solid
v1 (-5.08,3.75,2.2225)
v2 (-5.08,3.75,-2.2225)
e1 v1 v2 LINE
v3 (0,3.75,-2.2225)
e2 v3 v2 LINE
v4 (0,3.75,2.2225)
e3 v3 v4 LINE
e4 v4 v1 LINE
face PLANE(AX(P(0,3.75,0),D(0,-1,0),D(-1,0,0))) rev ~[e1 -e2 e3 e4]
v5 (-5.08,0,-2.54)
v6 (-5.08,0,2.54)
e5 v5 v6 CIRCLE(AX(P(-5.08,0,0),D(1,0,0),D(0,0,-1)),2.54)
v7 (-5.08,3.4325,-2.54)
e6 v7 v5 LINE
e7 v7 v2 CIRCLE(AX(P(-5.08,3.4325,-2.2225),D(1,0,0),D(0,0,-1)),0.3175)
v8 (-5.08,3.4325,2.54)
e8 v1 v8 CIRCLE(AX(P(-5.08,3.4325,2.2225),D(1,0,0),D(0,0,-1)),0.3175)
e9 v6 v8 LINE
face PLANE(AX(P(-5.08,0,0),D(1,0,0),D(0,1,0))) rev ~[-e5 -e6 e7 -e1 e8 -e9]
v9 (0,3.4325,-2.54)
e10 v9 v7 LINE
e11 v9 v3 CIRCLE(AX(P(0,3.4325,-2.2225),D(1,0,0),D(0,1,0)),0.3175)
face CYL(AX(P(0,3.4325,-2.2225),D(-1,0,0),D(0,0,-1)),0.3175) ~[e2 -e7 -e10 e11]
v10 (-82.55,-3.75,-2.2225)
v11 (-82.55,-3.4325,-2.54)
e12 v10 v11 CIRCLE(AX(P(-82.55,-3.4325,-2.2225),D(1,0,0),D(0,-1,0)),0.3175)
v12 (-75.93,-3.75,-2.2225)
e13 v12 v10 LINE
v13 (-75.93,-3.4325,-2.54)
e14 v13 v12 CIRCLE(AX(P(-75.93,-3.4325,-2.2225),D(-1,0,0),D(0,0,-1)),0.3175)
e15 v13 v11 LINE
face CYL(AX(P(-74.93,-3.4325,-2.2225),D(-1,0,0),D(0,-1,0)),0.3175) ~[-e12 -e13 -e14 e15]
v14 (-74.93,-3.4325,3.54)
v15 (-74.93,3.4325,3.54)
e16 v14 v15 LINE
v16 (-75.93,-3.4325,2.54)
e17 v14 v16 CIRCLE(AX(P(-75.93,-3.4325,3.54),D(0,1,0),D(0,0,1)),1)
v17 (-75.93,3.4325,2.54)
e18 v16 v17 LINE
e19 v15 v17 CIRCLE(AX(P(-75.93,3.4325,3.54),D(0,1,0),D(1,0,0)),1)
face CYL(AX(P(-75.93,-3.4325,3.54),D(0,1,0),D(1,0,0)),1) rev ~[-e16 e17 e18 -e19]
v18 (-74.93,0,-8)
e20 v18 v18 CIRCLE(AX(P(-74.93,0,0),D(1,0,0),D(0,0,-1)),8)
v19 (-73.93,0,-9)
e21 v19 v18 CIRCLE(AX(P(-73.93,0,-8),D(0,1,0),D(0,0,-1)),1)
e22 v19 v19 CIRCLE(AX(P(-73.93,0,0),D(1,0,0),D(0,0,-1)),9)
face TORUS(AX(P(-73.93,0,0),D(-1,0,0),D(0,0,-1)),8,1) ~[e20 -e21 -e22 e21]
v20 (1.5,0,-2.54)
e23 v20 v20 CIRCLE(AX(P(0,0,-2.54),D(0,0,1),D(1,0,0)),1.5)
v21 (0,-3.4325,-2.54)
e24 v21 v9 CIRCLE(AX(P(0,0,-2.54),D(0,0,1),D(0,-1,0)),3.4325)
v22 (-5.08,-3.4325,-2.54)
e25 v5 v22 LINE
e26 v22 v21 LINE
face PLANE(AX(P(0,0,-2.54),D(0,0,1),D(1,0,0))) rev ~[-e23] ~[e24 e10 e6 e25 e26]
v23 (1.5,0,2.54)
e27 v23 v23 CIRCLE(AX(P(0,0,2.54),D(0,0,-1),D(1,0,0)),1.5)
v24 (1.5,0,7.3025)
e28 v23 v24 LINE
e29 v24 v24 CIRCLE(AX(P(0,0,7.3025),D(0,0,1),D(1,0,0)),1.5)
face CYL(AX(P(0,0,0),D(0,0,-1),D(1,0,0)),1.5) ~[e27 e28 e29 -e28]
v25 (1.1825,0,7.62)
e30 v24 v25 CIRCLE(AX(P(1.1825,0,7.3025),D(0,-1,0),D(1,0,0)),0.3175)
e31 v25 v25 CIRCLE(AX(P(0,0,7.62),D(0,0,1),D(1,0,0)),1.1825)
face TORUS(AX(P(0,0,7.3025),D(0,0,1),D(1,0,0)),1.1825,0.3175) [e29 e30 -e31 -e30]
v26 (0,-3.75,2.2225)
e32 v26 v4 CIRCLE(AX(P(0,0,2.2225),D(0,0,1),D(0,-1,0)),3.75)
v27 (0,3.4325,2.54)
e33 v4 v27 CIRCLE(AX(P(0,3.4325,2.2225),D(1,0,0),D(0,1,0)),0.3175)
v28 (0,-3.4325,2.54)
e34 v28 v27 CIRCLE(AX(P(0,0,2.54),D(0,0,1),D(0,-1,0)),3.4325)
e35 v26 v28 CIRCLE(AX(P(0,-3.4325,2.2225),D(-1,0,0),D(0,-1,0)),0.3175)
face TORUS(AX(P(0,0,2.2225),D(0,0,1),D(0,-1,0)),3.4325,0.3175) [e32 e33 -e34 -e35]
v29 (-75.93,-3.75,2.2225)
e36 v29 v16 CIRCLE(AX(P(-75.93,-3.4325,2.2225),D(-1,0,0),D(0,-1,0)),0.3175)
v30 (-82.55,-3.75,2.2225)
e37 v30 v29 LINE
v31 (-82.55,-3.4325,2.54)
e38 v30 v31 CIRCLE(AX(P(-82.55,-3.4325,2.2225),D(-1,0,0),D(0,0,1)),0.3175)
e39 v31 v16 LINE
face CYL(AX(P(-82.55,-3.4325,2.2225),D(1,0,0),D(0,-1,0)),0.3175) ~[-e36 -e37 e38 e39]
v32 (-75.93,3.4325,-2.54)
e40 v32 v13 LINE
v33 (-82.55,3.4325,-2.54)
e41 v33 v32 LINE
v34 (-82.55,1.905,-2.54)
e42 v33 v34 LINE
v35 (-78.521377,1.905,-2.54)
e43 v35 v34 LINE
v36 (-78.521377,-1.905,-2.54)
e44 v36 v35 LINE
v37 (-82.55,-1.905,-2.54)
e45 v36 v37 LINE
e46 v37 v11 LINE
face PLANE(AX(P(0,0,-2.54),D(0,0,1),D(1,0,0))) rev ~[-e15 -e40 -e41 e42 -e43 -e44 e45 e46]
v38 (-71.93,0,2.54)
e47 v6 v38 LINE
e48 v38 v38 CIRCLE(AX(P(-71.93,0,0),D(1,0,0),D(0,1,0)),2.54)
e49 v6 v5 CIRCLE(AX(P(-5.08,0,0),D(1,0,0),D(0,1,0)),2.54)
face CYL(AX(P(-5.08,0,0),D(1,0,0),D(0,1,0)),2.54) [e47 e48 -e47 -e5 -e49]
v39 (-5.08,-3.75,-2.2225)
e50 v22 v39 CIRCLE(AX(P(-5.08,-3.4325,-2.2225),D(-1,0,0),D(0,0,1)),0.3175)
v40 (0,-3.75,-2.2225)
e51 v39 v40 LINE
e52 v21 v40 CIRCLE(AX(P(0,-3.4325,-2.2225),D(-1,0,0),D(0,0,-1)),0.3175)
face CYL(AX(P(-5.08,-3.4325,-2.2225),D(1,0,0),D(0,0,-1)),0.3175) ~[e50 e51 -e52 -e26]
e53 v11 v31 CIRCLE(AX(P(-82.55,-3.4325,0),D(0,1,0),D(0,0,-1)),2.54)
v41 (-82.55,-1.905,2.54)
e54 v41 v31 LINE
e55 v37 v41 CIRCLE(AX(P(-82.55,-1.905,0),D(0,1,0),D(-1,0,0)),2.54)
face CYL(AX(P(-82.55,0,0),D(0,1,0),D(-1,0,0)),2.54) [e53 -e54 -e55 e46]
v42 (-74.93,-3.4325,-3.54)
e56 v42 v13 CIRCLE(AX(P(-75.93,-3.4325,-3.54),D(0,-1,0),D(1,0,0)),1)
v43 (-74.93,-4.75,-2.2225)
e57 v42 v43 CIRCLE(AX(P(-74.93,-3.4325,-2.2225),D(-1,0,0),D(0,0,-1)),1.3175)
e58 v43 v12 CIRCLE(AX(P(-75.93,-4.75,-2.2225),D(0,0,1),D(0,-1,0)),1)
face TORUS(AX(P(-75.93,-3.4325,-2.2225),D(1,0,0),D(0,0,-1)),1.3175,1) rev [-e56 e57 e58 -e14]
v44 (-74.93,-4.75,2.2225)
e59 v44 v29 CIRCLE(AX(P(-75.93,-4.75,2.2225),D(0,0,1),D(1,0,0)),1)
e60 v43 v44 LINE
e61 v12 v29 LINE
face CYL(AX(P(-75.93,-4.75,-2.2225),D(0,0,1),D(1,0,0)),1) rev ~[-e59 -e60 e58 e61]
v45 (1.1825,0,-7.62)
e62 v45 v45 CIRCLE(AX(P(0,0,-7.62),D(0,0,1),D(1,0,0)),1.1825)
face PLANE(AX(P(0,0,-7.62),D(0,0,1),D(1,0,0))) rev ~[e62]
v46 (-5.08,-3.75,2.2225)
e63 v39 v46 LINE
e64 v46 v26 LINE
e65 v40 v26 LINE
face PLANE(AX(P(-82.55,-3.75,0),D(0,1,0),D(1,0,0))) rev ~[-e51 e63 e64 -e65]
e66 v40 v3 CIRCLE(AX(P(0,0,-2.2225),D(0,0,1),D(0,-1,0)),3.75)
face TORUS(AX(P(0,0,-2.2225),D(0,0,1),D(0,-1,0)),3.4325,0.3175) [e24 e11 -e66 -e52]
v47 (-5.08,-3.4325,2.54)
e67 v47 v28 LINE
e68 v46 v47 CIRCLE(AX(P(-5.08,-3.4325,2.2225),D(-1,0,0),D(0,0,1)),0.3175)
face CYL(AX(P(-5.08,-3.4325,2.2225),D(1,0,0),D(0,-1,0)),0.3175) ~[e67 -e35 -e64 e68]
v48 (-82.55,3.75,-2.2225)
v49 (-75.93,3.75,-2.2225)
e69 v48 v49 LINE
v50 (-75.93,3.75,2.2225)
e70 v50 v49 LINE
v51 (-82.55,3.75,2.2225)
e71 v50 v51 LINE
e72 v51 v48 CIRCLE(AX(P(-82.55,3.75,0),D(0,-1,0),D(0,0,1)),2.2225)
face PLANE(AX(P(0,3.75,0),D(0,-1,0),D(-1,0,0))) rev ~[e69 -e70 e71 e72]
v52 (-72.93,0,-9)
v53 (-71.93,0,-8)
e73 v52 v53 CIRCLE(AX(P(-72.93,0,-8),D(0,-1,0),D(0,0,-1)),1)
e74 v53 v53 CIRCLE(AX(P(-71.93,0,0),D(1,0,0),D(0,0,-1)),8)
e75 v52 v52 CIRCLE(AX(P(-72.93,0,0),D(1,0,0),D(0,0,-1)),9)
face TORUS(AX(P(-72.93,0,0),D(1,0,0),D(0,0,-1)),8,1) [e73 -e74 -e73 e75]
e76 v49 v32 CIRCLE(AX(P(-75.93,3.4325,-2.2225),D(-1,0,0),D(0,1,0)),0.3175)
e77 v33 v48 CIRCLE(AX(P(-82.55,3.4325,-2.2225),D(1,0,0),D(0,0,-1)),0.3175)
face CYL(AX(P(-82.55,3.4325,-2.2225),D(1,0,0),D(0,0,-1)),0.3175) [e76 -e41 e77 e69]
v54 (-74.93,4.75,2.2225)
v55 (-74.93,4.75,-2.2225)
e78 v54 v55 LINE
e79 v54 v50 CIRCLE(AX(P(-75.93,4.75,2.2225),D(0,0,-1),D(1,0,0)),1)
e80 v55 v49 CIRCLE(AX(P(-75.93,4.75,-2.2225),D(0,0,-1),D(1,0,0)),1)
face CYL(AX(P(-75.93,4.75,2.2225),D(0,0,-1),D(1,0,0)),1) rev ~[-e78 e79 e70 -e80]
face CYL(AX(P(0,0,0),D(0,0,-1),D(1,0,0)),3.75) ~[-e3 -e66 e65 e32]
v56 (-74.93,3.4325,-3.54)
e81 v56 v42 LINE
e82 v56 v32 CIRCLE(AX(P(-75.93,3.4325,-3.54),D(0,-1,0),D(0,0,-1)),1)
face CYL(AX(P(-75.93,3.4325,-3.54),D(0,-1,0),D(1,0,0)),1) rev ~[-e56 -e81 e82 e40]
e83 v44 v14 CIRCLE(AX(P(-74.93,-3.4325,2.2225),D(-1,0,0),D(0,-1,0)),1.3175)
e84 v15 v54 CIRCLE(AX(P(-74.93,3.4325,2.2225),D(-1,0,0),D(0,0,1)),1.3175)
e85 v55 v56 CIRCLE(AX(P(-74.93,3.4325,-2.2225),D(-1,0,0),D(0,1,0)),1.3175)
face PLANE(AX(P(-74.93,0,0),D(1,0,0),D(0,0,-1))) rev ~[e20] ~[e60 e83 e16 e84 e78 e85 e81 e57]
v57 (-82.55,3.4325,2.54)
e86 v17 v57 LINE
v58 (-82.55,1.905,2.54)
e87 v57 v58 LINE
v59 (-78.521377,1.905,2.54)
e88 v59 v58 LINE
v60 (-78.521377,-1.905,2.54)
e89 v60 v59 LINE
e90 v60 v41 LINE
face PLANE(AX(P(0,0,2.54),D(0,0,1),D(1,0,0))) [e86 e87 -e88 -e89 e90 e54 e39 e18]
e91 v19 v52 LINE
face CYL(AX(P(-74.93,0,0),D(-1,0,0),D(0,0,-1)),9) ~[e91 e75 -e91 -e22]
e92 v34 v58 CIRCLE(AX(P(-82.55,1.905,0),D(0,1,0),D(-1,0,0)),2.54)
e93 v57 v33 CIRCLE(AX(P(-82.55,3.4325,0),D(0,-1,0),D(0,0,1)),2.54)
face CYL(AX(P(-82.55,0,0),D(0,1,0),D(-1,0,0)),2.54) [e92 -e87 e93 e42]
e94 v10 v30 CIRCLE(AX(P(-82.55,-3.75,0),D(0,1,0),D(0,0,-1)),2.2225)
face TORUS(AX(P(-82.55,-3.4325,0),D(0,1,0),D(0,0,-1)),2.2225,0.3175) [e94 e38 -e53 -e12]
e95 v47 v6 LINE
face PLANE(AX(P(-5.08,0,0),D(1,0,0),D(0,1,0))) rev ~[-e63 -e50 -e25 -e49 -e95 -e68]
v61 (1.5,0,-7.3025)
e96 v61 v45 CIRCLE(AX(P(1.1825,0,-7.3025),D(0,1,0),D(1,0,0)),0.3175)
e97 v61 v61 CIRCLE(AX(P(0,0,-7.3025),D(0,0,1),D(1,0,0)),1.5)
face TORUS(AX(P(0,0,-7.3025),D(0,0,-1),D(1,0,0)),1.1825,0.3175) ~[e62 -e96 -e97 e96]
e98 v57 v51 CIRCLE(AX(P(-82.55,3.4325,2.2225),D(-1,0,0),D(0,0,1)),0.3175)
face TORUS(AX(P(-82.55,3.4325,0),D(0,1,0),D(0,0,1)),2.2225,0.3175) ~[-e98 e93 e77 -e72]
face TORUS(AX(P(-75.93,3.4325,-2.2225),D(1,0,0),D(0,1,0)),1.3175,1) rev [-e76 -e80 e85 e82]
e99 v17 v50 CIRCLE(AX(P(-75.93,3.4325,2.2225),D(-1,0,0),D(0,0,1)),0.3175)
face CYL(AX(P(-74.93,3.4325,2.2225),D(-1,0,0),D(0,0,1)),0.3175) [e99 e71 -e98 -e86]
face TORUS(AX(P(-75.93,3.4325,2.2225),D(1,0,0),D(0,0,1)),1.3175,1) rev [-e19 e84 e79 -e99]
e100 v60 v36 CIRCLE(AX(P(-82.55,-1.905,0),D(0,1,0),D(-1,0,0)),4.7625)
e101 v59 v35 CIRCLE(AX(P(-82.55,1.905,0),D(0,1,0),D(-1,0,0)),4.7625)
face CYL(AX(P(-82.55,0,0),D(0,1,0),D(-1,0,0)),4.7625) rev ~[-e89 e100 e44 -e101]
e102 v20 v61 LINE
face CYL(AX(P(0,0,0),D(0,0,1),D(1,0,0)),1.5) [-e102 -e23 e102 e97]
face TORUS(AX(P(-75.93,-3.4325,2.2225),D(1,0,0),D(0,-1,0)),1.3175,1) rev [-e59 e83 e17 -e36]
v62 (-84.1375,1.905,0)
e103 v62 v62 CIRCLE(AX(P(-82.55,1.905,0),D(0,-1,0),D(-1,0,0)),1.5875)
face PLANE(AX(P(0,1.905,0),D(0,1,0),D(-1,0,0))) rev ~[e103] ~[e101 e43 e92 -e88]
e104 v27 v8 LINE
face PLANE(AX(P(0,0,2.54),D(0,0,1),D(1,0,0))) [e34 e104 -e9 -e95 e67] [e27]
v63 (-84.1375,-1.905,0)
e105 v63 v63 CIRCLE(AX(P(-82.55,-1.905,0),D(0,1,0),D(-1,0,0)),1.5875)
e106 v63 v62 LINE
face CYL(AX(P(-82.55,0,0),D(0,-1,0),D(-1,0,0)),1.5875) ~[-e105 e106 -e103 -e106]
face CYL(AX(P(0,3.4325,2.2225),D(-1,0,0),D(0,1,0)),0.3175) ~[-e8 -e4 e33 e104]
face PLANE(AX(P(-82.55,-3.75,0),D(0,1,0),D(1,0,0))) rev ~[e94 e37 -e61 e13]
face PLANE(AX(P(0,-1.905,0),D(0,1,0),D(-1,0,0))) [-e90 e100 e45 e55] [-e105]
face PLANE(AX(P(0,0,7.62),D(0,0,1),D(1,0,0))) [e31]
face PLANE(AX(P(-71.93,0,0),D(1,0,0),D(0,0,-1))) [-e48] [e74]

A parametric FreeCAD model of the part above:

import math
import FreeCAD as App
import Part
import Sketcher

V = App.Vector
Q = App.Units.Quantity


def edges_at(feature, points):
    """Names of the edges that pass closest to the given points."""
    edges = feature.Shape.Edges
    near = lambda p: min(range(len(edges)), key=lambda i: edges[i].distToShape(Part.Vertex(*p))[0])
    return sorted({f"Edge{near(p) + 1}" for p in points})

doc = App.newDocument("Part")
body = doc.addObject("PartDesign::Body", "Body")

# Sketch on XY plane
sketch1 = body.newObject("Sketcher::SketchObject", "Sketch")
sketch1.AttachmentSupport = (doc.getObject("XY_Plane"), [""])
sketch1.MapMode = "FlatFace"
sketch1.addGeometry([
    Part.LineSegment(V(-82.5, -3.8, 0), V(0, -3.8, 0)),
    Part.ArcOfCircle(Part.Circle(V(0, 0, 0), V(0, 0, 1), 3.8), math.radians(-90), math.radians(90)),
    Part.LineSegment(V(0, 3.8, 0), V(-82.5, 3.8, 0)),
    Part.LineSegment(V(-82.5, 3.8, 0), V(-82.5, -3.8, 0)),
], False)
sketch1.addConstraint([
    Sketcher.Constraint("Tangent", 0, 2, 1, 1),
    Sketcher.Constraint("Tangent", 1, 2, 2, 1),
    Sketcher.Constraint("Coincident", 2, 2, 3, 1),
    Sketcher.Constraint("Coincident", 3, 2, 0, 1),
    Sketcher.Constraint("Horizontal", 0),
    Sketcher.Constraint("Horizontal", 2),
    Sketcher.Constraint("Vertical", 3),
    Sketcher.Constraint("Coincident", 1, 3, -1, 1),
    Sketcher.Constraint("DistanceX", 0, 1, 0, 2, Q("3.25 in")),
    Sketcher.Constraint("Radius", 1, 3.75),
])
pad1 = body.newObject("PartDesign::Pad", "Pad")
pad1.Profile = sketch1
pad1.Length = Q("0.2 in")
pad1.Midplane = True

# Sketch on YZ plane
sketch2 = body.newObject("Sketcher::SketchObject", "Sketch001")
sketch2.AttachmentSupport = (doc.getObject("YZ_Plane"), [""])
sketch2.MapMode = "FlatFace"
sketch2.AttachmentOffset = App.Placement(V(0, 0, -0.2 * 25.4), App.Rotation())
sketch2.addGeometry([
    Part.ArcOfCircle(Part.Circle(V(0, 0, 0), V(0, 0, 1), 2.5), math.radians(-90), math.radians(90)),  # 0
    Part.LineSegment(V(0, -2.5, 0), V(3.8, -2.5, 0)),  # 1
    Part.LineSegment(V(3.8, -2.5, 0), V(3.8, 2.5, 0)),  # 2
    Part.LineSegment(V(3.8, 2.5, 0), V(0, 2.5, 0)),  # 3
    Part.ArcOfCircle(Part.Circle(V(0, 0, 0), V(0, 0, 1), 2.5), math.radians(90), math.radians(270)),  # 4
    Part.LineSegment(V(0, 2.5, 0), V(-3.8, 2.5, 0)),  # 5
    Part.LineSegment(V(-3.8, 2.5, 0), V(-3.8, -2.5, 0)),  # 6
    Part.LineSegment(V(-3.8, -2.5, 0), V(0, -2.5, 0)),  # 7
], False)
sketch2.addConstraint([
    Sketcher.Constraint("Tangent", 0, 1, 1, 1),
    Sketcher.Constraint("Coincident", 1, 2, 2, 1),
    Sketcher.Constraint("Coincident", 2, 2, 3, 1),
    Sketcher.Constraint("Tangent", 3, 2, 0, 2),
    Sketcher.Constraint("Tangent", 4, 1, 5, 1),
    Sketcher.Constraint("Coincident", 5, 2, 6, 1),
    Sketcher.Constraint("Coincident", 6, 2, 7, 1),
    Sketcher.Constraint("Tangent", 7, 2, 4, 2),
    Sketcher.Constraint("Horizontal", 1),
    Sketcher.Constraint("Vertical", 2),
    Sketcher.Constraint("Horizontal", 3),
    Sketcher.Constraint("Horizontal", 5),
    Sketcher.Constraint("Vertical", 6),
    Sketcher.Constraint("Horizontal", 7),
    Sketcher.Constraint("Coincident", 0, 3, -1, 1),
    Sketcher.Constraint("Coincident", 4, 3, -1, 1),
    Sketcher.Constraint("Equal", 0, 4),
    Sketcher.Constraint("Equal", 3, 5),
    Sketcher.Constraint("Radius", 0, Q("0.1 in")),
    Sketcher.Constraint("DistanceX", 1, 1, 1, 2, 3.75),
])
pocket1 = body.newObject("PartDesign::Pocket", "Pocket")
pocket1.Profile = sketch2
pocket1.Length = Q("2.75 in")

# Sketch on XY plane
sketch3 = body.newObject("Sketcher::SketchObject", "Sketch002")
sketch3.AttachmentSupport = (doc.getObject("XY_Plane"), [""])
sketch3.MapMode = "FlatFace"
sketch3.addGeometry(Part.Circle(V(0, 0, 0), V(0, 0, 1), 1.5), False)
sketch3.addConstraint([
    Sketcher.Constraint("Coincident", 0, 3, -1, 1),
    Sketcher.Constraint("Diameter", 0, Q("0.1181 in")),
])
pad2 = body.newObject("PartDesign::Pad", "Pad001")
pad2.Profile = sketch3
pad2.Length = Q("0.6 in")
pad2.Midplane = True

# Sketch on XZ plane
sketch4 = body.newObject("Sketcher::SketchObject", "Sketch003")
sketch4.AttachmentSupport = (doc.getObject("XZ_Plane"), [""])
sketch4.MapMode = "FlatFace"
sketch4.addGeometry(Part.Circle(V(-82.5, 0, 0), V(0, 0, 1), 2.5), False)
sketch4.addConstraint([
    Sketcher.Constraint("PointOnObject", 0, 3, -1),
    Sketcher.Constraint("Diameter", 0, Q("0.2 in")),
    Sketcher.Constraint("DistanceX", 0, 3, -1, 1, Q("3.25 in")),
])
pad3 = body.newObject("PartDesign::Pad", "Pad002")
pad3.Profile = sketch4
pad3.Length = 7.5
pad3.Midplane = True

# Sketch on XZ plane
sketch5 = body.newObject("Sketcher::SketchObject", "Sketch004")
sketch5.AttachmentSupport = (doc.getObject("XZ_Plane"), [""])
sketch5.MapMode = "FlatFace"
sketch5.addGeometry(Part.Circle(V(-82.5, 0, 0), V(0, 0, 1), 4.8), False)
sketch5.addConstraint([
    Sketcher.Constraint("PointOnObject", 0, 3, -1),
    Sketcher.Constraint("Diameter", 0, Q("0.375 in")),
    Sketcher.Constraint("DistanceX", 0, 3, -1, 1, Q("3.25 in")),
])
pocket2 = body.newObject("PartDesign::Pocket", "Pocket001")
pocket2.Profile = sketch5
pocket2.Length = Q("0.15 in")
pocket2.Midplane = True

# Sketch on XZ plane
sketch6 = body.newObject("Sketcher::SketchObject", "Sketch005")
sketch6.AttachmentSupport = (doc.getObject("XZ_Plane"), [""])
sketch6.MapMode = "FlatFace"
sketch6.addGeometry(Part.Circle(V(-82.5, 0, 0), V(0, 0, 1), 1.6), False)
sketch6.addConstraint([
    Sketcher.Constraint("PointOnObject", 0, 3, -1),
    Sketcher.Constraint("Diameter", 0, Q("0.125 in")),
    Sketcher.Constraint("DistanceX", 0, 3, -1, 1, Q("3.25 in")),
])
pad4 = body.newObject("PartDesign::Pad", "Pad003")
pad4.Profile = sketch6
pad4.Length = Q("0.2 in")
pad4.Midplane = True
doc.recompute()

fillet = body.newObject("PartDesign::Fillet", "Fillet")
fillet.Base = (pad4, edges_at(pad4, [
    (-2.54, -3.75, 2.54),
    (-78.74, -3.75, 2.54),
    (3.75, 0, 2.54),
    (-2.54, 3.75, 2.54),
    (-78.74, 3.75, 2.54),
    (-2.54, 3.75, -2.54),
    (-78.74, 3.75, -2.54),
    (-2.54, -3.75, -2.54),
    (-78.74, -3.75, -2.54),
    (3.75, 0, -2.54),
    (-85.09, -3.75, 0),
    (-85.09, 3.75, 0),
    (-1.5, 0, 7.62),
    (-1.5, 0, -7.62),
]))
fillet.Radius = Q("0.0125 in")

# Sketch on YZ plane
sketch7 = body.newObject("Sketcher::SketchObject", "Sketch006")
sketch7.AttachmentSupport = (doc.getObject("YZ_Plane"), [""])
sketch7.MapMode = "FlatFace"
sketch7.AttachmentOffset = App.Placement(V(0, 0, -2.95 * 25.4), App.Rotation())
sketch7.addGeometry(Part.Circle(V(0, 0, 0), V(0, 0, 1), 9), False)
sketch7.addConstraint([
    Sketcher.Constraint("Coincident", 0, 3, -1, 1),
    Sketcher.Constraint("Diameter", 0, 18.0),
])
pad5 = body.newObject("PartDesign::Pad", "Pad004")
pad5.Profile = sketch7
pad5.Length = Q("0.1181102 in")
doc.recompute()

fillet2 = body.newObject("PartDesign::Fillet", "Fillet001")
fillet2.Base = (pad5, edges_at(pad5, [
    (-74.93, 3.75, 0),
    (-74.93, 3.657, -2.447),
    (-74.93, 0, -2.54),
    (-74.93, -3.657, -2.447),
    (-74.93, -3.75, 0),
    (-74.93, -3.657, 2.447),
    (-74.93, 0, 2.54),
    (-74.93, 3.657, 2.447),
    (-74.93, 0, 9),
    (-71.93, 0, 9),
]))
fillet2.Radius = 1

doc.recompute()
